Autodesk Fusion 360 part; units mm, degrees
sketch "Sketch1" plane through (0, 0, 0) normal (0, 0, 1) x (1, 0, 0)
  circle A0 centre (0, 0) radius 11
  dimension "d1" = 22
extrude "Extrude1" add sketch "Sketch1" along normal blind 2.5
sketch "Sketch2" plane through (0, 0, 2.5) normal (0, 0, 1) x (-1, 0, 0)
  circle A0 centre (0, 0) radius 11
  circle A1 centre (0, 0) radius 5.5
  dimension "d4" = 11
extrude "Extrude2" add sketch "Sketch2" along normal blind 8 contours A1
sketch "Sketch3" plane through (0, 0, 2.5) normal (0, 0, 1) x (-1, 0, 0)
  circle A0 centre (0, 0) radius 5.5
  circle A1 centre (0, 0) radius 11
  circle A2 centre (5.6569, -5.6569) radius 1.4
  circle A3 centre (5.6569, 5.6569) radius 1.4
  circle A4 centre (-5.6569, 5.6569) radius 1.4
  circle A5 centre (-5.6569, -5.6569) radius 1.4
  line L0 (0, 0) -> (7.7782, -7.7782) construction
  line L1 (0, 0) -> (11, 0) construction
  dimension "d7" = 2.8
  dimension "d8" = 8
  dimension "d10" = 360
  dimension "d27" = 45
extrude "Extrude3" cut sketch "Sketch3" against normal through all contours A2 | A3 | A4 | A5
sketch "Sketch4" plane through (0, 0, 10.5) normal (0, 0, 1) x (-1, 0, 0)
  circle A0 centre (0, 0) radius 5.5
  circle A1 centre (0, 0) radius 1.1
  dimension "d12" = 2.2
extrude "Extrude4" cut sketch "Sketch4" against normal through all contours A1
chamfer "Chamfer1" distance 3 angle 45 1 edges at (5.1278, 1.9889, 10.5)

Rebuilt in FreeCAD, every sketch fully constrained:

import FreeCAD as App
import Part
import Sketcher
from FreeCAD import Vector


def edges_at(feature, points):
    """Names of the edges that pass closest to the given points."""
    edges = feature.Shape.Edges
    near = lambda p: min(range(len(edges)), key=lambda i: edges[i].distToShape(Part.Vertex(*p))[0])
    return sorted({f"Edge{near(p) + 1}" for p in points})

doc = App.newDocument("Part")
body = doc.addObject("PartDesign::Body", "Body")

# Sketch on XY plane
sketch1 = body.newObject("Sketcher::SketchObject", "Sketch")
sketch1.AttachmentSupport = (doc.getObject("XY_Plane"), [""])
sketch1.MapMode = "FlatFace"
sketch1.addGeometry(Part.Circle(Vector(0, 0, 0), Vector(0, 0, 1), 11), False)
sketch1.addConstraint([
    Sketcher.Constraint("Coincident", 0, 3, -1, 1),
    Sketcher.Constraint("Diameter", 0, 22.0),
])
pad1 = body.newObject("PartDesign::Pad", "Pad")
pad1.Profile = sketch1
pad1.Length = 2.5

# Sketch on XY plane
sketch2 = body.newObject("Sketcher::SketchObject", "Sketch001")
sketch2.AttachmentSupport = (doc.getObject("XY_Plane"), [""])
sketch2.MapMode = "FlatFace"
sketch2.AttachmentOffset = App.Placement(Vector(0, 0, 2.5), App.Rotation())
sketch2.addGeometry(Part.Circle(Vector(0, 0, 0), Vector(0, 0, 1), 5.5), False)
sketch2.addConstraint([
    Sketcher.Constraint("Coincident", 0, 3, -1, 1),
    Sketcher.Constraint("Diameter", 0, 11.0),
])
pad2 = body.newObject("PartDesign::Pad", "Pad001")
pad2.Profile = sketch2
pad2.Length = 8

# Sketch on XY plane
sketch3 = body.newObject("Sketcher::SketchObject", "Sketch002")
sketch3.AttachmentSupport = (doc.getObject("XY_Plane"), [""])
sketch3.MapMode = "FlatFace"
sketch3.AttachmentOffset = App.Placement(Vector(0, 0, 2.5), App.Rotation())
sketch3.addGeometry([
    Part.Circle(Vector(-5.6569, 5.6569, 0), Vector(0, 0, 1), 1.4),
    Part.Circle(Vector(-5.6569, -5.6569, 0), Vector(0, 0, 1), 1.4),
    Part.Circle(Vector(5.6569, -5.6569, 0), Vector(0, 0, 1), 1.4),
    Part.Circle(Vector(5.6569, 5.6569, 0), Vector(0, 0, 1), 1.4),
], False)
sketch3.addConstraint([
    Sketcher.Constraint("Equal", 0, 1),
    Sketcher.Constraint("Equal", 1, 2),
    Sketcher.Constraint("Equal", 2, 3),
    Sketcher.Constraint("Symmetric", 0, 3, 2, 3, -1, 1),
    Sketcher.Constraint("Symmetric", 1, 3, 3, 3, -1, 1),
    Sketcher.Constraint("Symmetric", 1, 3, 2, 3, -2),
    Sketcher.Constraint("Diameter", 0, 2.8),
    Sketcher.Constraint("DistanceX", 0, 3, -1, 1, 5.657),
    Sketcher.Constraint("DistanceY", -1, 1, 0, 3, 5.657),
])
pocket1 = body.newObject("PartDesign::Pocket", "Pocket")
pocket1.Profile = sketch3
pocket1.Type = "ThroughAll"

# Sketch on XY plane
sketch4 = body.newObject("Sketcher::SketchObject", "Sketch003")
sketch4.AttachmentSupport = (doc.getObject("XY_Plane"), [""])
sketch4.MapMode = "FlatFace"
sketch4.AttachmentOffset = App.Placement(Vector(0, 0, 10.5), App.Rotation())
sketch4.addGeometry(Part.Circle(Vector(0, 0, 0), Vector(0, 0, 1), 1.1), False)
sketch4.addConstraint([
    Sketcher.Constraint("Coincident", 0, 3, -1, 1),
    Sketcher.Constraint("Diameter", 0, 2.2),
])
pocket2 = body.newObject("PartDesign::Pocket", "Pocket001")
pocket2.Profile = sketch4
pocket2.Type = "ThroughAll"
doc.recompute()

chamfer = body.newObject("PartDesign::Chamfer", "Chamfer")
chamfer.Base = (pocket2, edges_at(pocket2, [(5.128, 1.989, 10.5)]))
chamfer.Size = 3

doc.recompute()
